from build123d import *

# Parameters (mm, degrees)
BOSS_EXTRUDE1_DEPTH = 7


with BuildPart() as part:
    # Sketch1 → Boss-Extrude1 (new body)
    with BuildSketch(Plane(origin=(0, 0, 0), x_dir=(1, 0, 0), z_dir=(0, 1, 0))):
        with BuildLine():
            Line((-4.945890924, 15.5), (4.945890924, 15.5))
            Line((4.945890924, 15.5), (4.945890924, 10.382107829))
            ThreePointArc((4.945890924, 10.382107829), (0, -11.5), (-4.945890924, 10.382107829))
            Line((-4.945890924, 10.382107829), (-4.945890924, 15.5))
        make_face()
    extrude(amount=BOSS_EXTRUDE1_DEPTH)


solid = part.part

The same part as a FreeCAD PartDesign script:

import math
import FreeCAD as App
import Part
import Sketcher

V = App.Vector
Q = App.Units.Quantity

doc = App.newDocument("Part")
params = doc.addObject("Spreadsheet::Sheet", "Params")
for row, (alias, value) in enumerate([
    ("sketch1_radius", "11.5 mm"),
    ("pad1_length", "7 mm"),
], start=1):
    params.set(f"A{row}", alias)
    params.set(f"B{row}", "=" + value)
    params.setAlias(f"B{row}", alias)

body = doc.addObject("PartDesign::Body", "Body")

# Sketch on XZ plane
sketch1 = body.newObject("Sketcher::SketchObject", "Sketch")
sketch1.AttachmentSupport = (doc.getObject("XZ_Plane"), [""])
sketch1.MapMode = "FlatFace"
sketch1.addGeometry([
    Part.LineSegment(V(5, -16, 0), V(-5, -16, 0)),
    Part.LineSegment(V(-5, -16, 0), V(-5, -10, 0)),
    Part.ArcOfCircle(Part.Circle(V(0, 0, 0), V(0, 0, 1), 12), math.radians(-65), math.radians(245)),
    Part.LineSegment(V(5, -10, 0), V(5, -16, 0)),
], False)
sketch1.addConstraint([
    Sketcher.Constraint("Coincident", 0, 2, 1, 1),
    Sketcher.Constraint("Coincident", 1, 2, 2, 2),
    Sketcher.Constraint("Coincident", 2, 1, 3, 1),
    Sketcher.Constraint("Coincident", 3, 2, 0, 1),
    Sketcher.Constraint("Horizontal", 0),
    Sketcher.Constraint("Vertical", 1),
    Sketcher.Constraint("Vertical", 3),
    Sketcher.Constraint("Coincident", 2, 3, -1, 1),
    Sketcher.Constraint("Horizontal", 1, 2, 2, 1),
    Sketcher.Constraint("Radius", 2, Q("11.5 mm")),
    Sketcher.Constraint("DistanceY", 0, 2, -1, 1, Q("15.5 mm")),
    Sketcher.Constraint("DistanceX", 0, 2, 0, 1, Q("9.891782 mm")),
])
sketch1.setExpression("Constraints[9]", "Params.sketch1_radius")
pad1 = body.newObject("PartDesign::Pad", "Pad")
pad1.Profile = sketch1
pad1.setExpression("Length", "Params.pad1_length")
pad1.Reversed = True

doc.recompute()
